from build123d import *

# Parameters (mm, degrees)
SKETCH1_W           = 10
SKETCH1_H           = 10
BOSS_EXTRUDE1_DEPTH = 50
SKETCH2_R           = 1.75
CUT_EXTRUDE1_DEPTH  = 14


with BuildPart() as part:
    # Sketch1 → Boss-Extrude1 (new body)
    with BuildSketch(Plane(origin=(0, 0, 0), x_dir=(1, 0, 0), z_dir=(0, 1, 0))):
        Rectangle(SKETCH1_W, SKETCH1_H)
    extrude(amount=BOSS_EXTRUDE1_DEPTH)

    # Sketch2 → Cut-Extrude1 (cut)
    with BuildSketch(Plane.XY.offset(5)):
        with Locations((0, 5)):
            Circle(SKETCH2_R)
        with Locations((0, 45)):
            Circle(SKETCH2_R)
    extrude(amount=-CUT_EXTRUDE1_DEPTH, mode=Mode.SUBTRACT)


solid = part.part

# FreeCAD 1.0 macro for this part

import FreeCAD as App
import Part
import Sketcher
Q = App.Units.Quantity


def add_polygon(sketch, points):
    """Adds a closed chain of lines whose ends are joined by coincident constraints."""
    first, n = sketch.GeometryCount, len(points)
    for a, b in zip(points, points[1:] + points[:1]):
        sketch.addGeometry(Part.LineSegment(App.Vector(*a, 0), App.Vector(*b, 0)), False)
    for i in range(n):
        sketch.addConstraint(Sketcher.Constraint("Coincident", first + i, 2, first + (i + 1) % n, 1))

doc = App.newDocument("Part")
body = doc.addObject("PartDesign::Body", "Body")

# Sketch on XZ plane
sketch1 = doc.addObject("Sketcher::SketchObject", "Sketch")
body.addObject(sketch1)
sketch1.AttachmentSupport = (doc.XZ_Plane, [""])
sketch1.MapMode = "FlatFace"
add_polygon(sketch1, [(-5, -5), (-5, 5), (5, 5), (5, -5)])  # lines 0-3
sketch1.addConstraint(Sketcher.Constraint("Vertical", 0))
sketch1.addConstraint(Sketcher.Constraint("Horizontal", 1))
sketch1.addConstraint(Sketcher.Constraint("Vertical", 2))
sketch1.addConstraint(Sketcher.Constraint("Horizontal", 3))
sketch1.addConstraint(Sketcher.Constraint("Symmetric", 0, 2, 2, 2, -1, 1))
sketch1.addConstraint(Sketcher.Constraint("Equal", 3, 0))
sketch1.addConstraint(Sketcher.Constraint("DistanceX", 1, 1, 1, 2, Q("10 mm")))
pad1 = doc.addObject("PartDesign::Pad", "Pad")
body.addObject(pad1)
pad1.Profile = sketch1
pad1.Length = 50
pad1.Reversed = True

# Sketch on XY plane
sketch2 = doc.addObject("Sketcher::SketchObject", "Sketch001")
body.addObject(sketch2)
sketch2.AttachmentSupport = (doc.XY_Plane, [""])
sketch2.MapMode = "FlatFace"
sketch2.AttachmentOffset = App.Placement(App.Vector(0, 0, 5), App.Rotation())
sketch2.addGeometry(Part.Circle(App.Vector(0, 5, 0), App.Vector(0, 0, 1), 1.75), False)
sketch2.addGeometry(Part.Circle(App.Vector(0, 45, 0), App.Vector(0, 0, 1), 1.75), False)
sketch2.addConstraint(Sketcher.Constraint("Equal", 0, 1))
sketch2.addConstraint(Sketcher.Constraint("PointOnObject", 0, 3, -2))
sketch2.addConstraint(Sketcher.Constraint("PointOnObject", 1, 3, -2))
sketch2.addConstraint(Sketcher.Constraint("Diameter", 0, Q("3.5 mm")))
sketch2.addConstraint(Sketcher.Constraint("DistanceY", -1, 1, 0, 3, Q("5 mm")))
sketch2.addConstraint(Sketcher.Constraint("DistanceY", -1, 1, 1, 3, Q("45 mm")))
pocket1 = doc.addObject("PartDesign::Pocket", "Pocket")
body.addObject(pocket1)
pocket1.Profile = sketch2
pocket1.Length = 14

doc.recompute()
